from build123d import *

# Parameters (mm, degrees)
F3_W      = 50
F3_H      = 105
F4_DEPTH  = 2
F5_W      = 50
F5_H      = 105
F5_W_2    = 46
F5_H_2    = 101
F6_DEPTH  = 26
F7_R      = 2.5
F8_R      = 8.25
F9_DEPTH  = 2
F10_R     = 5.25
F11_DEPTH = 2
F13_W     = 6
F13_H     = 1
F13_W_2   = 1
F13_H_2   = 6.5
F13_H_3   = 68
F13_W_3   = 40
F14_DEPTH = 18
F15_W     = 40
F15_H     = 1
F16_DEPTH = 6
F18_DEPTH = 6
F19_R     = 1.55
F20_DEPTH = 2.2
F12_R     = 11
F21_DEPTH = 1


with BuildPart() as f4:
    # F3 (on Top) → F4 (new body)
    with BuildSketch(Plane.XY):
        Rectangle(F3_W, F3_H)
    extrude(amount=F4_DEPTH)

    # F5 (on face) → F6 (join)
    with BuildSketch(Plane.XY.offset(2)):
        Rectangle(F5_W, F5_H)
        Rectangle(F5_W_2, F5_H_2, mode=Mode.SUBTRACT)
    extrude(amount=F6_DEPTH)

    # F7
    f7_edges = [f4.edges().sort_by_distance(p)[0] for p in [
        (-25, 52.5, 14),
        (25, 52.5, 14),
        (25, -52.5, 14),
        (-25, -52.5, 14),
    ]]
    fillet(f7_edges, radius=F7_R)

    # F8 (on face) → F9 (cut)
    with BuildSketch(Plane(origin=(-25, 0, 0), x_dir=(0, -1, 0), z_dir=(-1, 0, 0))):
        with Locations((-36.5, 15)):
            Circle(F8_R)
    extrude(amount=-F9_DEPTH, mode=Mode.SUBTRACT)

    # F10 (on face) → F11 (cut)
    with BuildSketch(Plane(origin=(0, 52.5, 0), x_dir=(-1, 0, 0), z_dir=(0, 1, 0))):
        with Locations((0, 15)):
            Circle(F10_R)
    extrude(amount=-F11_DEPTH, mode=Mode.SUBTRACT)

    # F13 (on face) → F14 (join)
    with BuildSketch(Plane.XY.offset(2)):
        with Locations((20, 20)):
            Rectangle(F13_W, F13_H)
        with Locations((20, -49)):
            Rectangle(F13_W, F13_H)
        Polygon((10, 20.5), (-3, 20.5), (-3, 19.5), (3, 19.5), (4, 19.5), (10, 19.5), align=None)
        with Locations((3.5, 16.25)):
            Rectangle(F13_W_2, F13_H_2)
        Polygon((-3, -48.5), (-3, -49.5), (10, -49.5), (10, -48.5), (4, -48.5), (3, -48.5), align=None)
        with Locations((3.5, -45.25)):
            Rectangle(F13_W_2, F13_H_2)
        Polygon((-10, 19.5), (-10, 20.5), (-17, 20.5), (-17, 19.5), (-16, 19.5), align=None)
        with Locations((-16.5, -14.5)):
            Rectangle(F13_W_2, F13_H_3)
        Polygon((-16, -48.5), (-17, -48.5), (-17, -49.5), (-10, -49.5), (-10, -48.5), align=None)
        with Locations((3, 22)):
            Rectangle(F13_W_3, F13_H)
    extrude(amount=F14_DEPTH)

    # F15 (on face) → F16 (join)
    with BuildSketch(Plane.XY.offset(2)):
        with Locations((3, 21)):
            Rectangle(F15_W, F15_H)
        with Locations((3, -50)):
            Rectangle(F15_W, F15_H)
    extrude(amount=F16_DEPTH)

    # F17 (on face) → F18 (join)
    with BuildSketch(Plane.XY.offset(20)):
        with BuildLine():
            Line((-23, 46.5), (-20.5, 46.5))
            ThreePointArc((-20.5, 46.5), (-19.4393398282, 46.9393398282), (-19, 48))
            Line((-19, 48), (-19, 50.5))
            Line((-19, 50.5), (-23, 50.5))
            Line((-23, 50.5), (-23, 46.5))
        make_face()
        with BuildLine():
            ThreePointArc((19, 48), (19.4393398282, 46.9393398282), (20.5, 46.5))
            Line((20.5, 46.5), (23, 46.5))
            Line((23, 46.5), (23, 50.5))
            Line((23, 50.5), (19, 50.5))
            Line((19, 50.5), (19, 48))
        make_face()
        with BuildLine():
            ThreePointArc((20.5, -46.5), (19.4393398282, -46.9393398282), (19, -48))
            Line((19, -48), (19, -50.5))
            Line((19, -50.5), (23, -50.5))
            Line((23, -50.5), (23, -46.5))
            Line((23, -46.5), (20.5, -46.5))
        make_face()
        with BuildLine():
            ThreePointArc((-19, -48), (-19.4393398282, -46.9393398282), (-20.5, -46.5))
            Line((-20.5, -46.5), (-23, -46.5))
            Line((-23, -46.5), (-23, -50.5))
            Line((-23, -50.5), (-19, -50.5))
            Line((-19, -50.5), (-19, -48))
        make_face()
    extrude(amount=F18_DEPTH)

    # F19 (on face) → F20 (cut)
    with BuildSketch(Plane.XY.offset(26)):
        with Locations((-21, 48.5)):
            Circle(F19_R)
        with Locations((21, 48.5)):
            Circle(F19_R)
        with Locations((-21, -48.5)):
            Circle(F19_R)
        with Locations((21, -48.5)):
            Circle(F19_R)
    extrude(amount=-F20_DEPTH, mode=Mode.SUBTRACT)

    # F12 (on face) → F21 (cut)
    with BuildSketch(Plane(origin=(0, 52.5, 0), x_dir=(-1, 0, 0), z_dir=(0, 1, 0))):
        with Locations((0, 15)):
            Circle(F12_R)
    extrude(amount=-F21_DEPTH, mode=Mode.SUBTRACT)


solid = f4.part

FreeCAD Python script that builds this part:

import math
import FreeCAD as App
import Part
import Sketcher
from FreeCAD import Vector
Q = App.Units.Quantity


def edges_at(feature, points):
    """Names of the edges that pass closest to the given points."""
    edges = feature.Shape.Edges
    near = lambda p: min(range(len(edges)), key=lambda i: edges[i].distToShape(Part.Vertex(*p))[0])
    return sorted({f"Edge{near(p) + 1}" for p in points})

doc = App.newDocument("Part")
params = doc.addObject("Spreadsheet::Sheet", "Params")
for row, (alias, value) in enumerate([
    ("sketch1_width", "50 mm"),
    ("sketch1_height", "105 mm"),
    ("pad1_length", "2 mm"),
    ("sketch2_width", "50 mm"),
    ("sketch2_width2", "46 mm"),
    ("sketch2_height", "105 mm"),
    ("sketch2_height2", "101 mm"),
    ("pad2_length", "26 mm"),
    ("fillet_radius", "2.5 mm"),
    ("sketch3_diameter", "16.5 mm"),
    ("pocket1_length", "2 mm"),
    ("sketch4_diameter", "10.5 mm"),
    ("pocket2_length", "2 mm"),
    ("sketch5_width", "6 mm"),
    ("sketch5_width2", "13 mm"),
    ("sketch5_width3", "7 mm"),
    ("sketch5_width4", "40 mm"),
    ("sketch5_height", "70 mm"),
    ("pad3_length", "18 mm"),
    ("sketch6_width", "40 mm"),
    ("sketch6_height", "1 mm"),
    ("pad4_length", "6 mm"),
    ("sketch7_radius", "1.5 mm"),
    ("sketch7_width", "4 mm"),
    ("pad5_length", "6 mm"),
    ("sketch8_diameter", "3.1 mm"),
    ("pocket3_length", "2.2 mm"),
    ("sketch9_diameter", "22 mm"),
    ("pocket4_length", "1 mm"),
], start=1):
    params.set(f"A{row}", alias)
    params.set(f"B{row}", "=" + value)
    params.setAlias(f"B{row}", alias)

body = doc.addObject("PartDesign::Body", "Body")

sketch1 = doc.addObject("Sketcher::SketchObject", "Sketch")
body.addObject(sketch1)
sketch1.AttachmentSupport = (doc.XY_Plane, [""])
sketch1.MapMode = "FlatFace"
sketch1.addGeometry(Part.LineSegment(Vector(-25, 52, 0), Vector(-25, -52, 0)), False)
sketch1.addGeometry(Part.LineSegment(Vector(-25, -52, 0), Vector(25, -52, 0)), False)
sketch1.addGeometry(Part.LineSegment(Vector(25, -52, 0), Vector(25, 52, 0)), False)
sketch1.addGeometry(Part.LineSegment(Vector(25, 52, 0), Vector(-25, 52, 0)), False)
sketch1.addConstraint(Sketcher.Constraint("Coincident", 0, 2, 1, 1))
sketch1.addConstraint(Sketcher.Constraint("Coincident", 1, 2, 2, 1))
sketch1.addConstraint(Sketcher.Constraint("Coincident", 2, 2, 3, 1))
sketch1.addConstraint(Sketcher.Constraint("Coincident", 3, 2, 0, 1))
sketch1.addConstraint(Sketcher.Constraint("Vertical", 0))
sketch1.addConstraint(Sketcher.Constraint("Horizontal", 1))
sketch1.addConstraint(Sketcher.Constraint("Vertical", 2))
sketch1.addConstraint(Sketcher.Constraint("Horizontal", 3))
sketch1.addConstraint(Sketcher.Constraint("Symmetric", 0, 2, 2, 2, -1, 1))
sketch1.addConstraint(Sketcher.Constraint("DistanceX", 1, 1, 1, 2, Q("50 mm")))
sketch1.addConstraint(Sketcher.Constraint("DistanceY", 0, 2, 0, 1, Q("105 mm")))
sketch1.setExpression("Constraints[9]", "Params.sketch1_width")
sketch1.setExpression("Constraints[10]", "Params.sketch1_height")
pad1 = doc.addObject("PartDesign::Pad", "Pad")
body.addObject(pad1)
pad1.Profile = sketch1
pad1.setExpression("Length", "Params.pad1_length")

sketch2 = doc.addObject("Sketcher::SketchObject", "Sketch001")
body.addObject(sketch2)
sketch2.AttachmentSupport = (doc.XY_Plane, [""])
sketch2.MapMode = "FlatFace"
sketch2.AttachmentOffset = App.Placement(Vector(0, 0, 2), App.Rotation())
sketch2.addGeometry(Part.LineSegment(Vector(-25, 52, 0), Vector(-25, -52, 0)), False)
sketch2.addGeometry(Part.LineSegment(Vector(-25, -52, 0), Vector(25, -52, 0)), False)
sketch2.addGeometry(Part.LineSegment(Vector(25, -52, 0), Vector(25, 52, 0)), False)
sketch2.addGeometry(Part.LineSegment(Vector(25, 52, 0), Vector(-25, 52, 0)), False)
sketch2.addGeometry(Part.LineSegment(Vector(23, -50, 0), Vector(-23, -50, 0)), False)
sketch2.addGeometry(Part.LineSegment(Vector(-23, -50, 0), Vector(-23, 50, 0)), False)
sketch2.addGeometry(Part.LineSegment(Vector(-23, 50, 0), Vector(23, 50, 0)), False)
sketch2.addGeometry(Part.LineSegment(Vector(23, 50, 0), Vector(23, -50, 0)), False)
sketch2.addConstraint(Sketcher.Constraint("Coincident", 0, 2, 1, 1))
sketch2.addConstraint(Sketcher.Constraint("Coincident", 1, 2, 2, 1))
sketch2.addConstraint(Sketcher.Constraint("Coincident", 2, 2, 3, 1))
sketch2.addConstraint(Sketcher.Constraint("Coincident", 3, 2, 0, 1))
sketch2.addConstraint(Sketcher.Constraint("Coincident", 4, 2, 5, 1))
sketch2.addConstraint(Sketcher.Constraint("Coincident", 5, 2, 6, 1))
sketch2.addConstraint(Sketcher.Constraint("Coincident", 6, 2, 7, 1))
sketch2.addConstraint(Sketcher.Constraint("Coincident", 7, 2, 4, 1))
sketch2.addConstraint(Sketcher.Constraint("Vertical", 0))
sketch2.addConstraint(Sketcher.Constraint("Horizontal", 1))
sketch2.addConstraint(Sketcher.Constraint("Vertical", 2))
sketch2.addConstraint(Sketcher.Constraint("Horizontal", 3))
sketch2.addConstraint(Sketcher.Constraint("Horizontal", 4))
sketch2.addConstraint(Sketcher.Constraint("Vertical", 5))
sketch2.addConstraint(Sketcher.Constraint("Horizontal", 6))
sketch2.addConstraint(Sketcher.Constraint("Vertical", 7))
sketch2.addConstraint(Sketcher.Constraint("Symmetric", 0, 2, 2, 2, -1, 1))
sketch2.addConstraint(Sketcher.Constraint("Symmetric", 4, 2, 6, 2, -1, 1))
sketch2.addConstraint(Sketcher.Constraint("DistanceX", 1, 1, 1, 2, Q("50 mm")))
sketch2.addConstraint(Sketcher.Constraint("DistanceX", 4, 2, 4, 1, Q("46 mm")))
sketch2.addConstraint(Sketcher.Constraint("DistanceY", 0, 2, 0, 1, Q("105 mm")))
sketch2.addConstraint(Sketcher.Constraint("DistanceY", 5, 1, 5, 2, Q("101 mm")))
sketch2.setExpression("Constraints[18]", "Params.sketch2_width")
sketch2.setExpression("Constraints[19]", "Params.sketch2_width2")
sketch2.setExpression("Constraints[20]", "Params.sketch2_height")
sketch2.setExpression("Constraints[21]", "Params.sketch2_height2")
pad2 = doc.addObject("PartDesign::Pad", "Pad001")
body.addObject(pad2)
pad2.Profile = sketch2
pad2.setExpression("Length", "Params.pad2_length")
doc.recompute()

fillet = doc.addObject("PartDesign::Fillet", "Fillet")
body.addObject(fillet)
fillet.Base = (pad2, edges_at(pad2, [
    (-25, 52.5, 14),
    (25, 52.5, 14),
    (25, -52.5, 14),
    (-25, -52.5, 14),
]))
fillet.setExpression("Radius", "Params.fillet_radius")

sketch3 = doc.addObject("Sketcher::SketchObject", "Sketch002")
body.addObject(sketch3)
sketch3.AttachmentSupport = (doc.YZ_Plane, [""])
sketch3.MapMode = "FlatFace"
sketch3.AttachmentOffset = App.Placement(Vector(0, 0, -25), App.Rotation())
sketch3.addGeometry(Part.Circle(Vector(36, 15, 0), Vector(0, 0, 1), 8), False)
sketch3.addConstraint(Sketcher.Constraint("Diameter", 0, Q("16.5 mm")))
sketch3.addConstraint(Sketcher.Constraint("DistanceY", -1, 1, 0, 3, Q("15 mm")))
sketch3.addConstraint(Sketcher.Constraint("DistanceX", -1, 1, 0, 3, Q("36.5 mm")))
sketch3.setExpression("Constraints[0]", "Params.sketch3_diameter")
pocket1 = doc.addObject("PartDesign::Pocket", "Pocket")
body.addObject(pocket1)
pocket1.Profile = sketch3
pocket1.setExpression("Length", "Params.pocket1_length")
pocket1.Reversed = True

sketch4 = doc.addObject("Sketcher::SketchObject", "Sketch003")
body.addObject(sketch4)
sketch4.AttachmentSupport = (doc.XZ_Plane, [""])
sketch4.MapMode = "FlatFace"
sketch4.AttachmentOffset = App.Placement(Vector(0, 0, -52.5), App.Rotation())
sketch4.addGeometry(Part.Circle(Vector(0, 15, 0), Vector(0, 0, 1), 5), False)
sketch4.addConstraint(Sketcher.Constraint("PointOnObject", 0, 3, -2))
sketch4.addConstraint(Sketcher.Constraint("Diameter", 0, Q("10.5 mm")))
sketch4.addConstraint(Sketcher.Constraint("DistanceY", -1, 1, 0, 3, Q("15 mm")))
sketch4.setExpression("Constraints[1]", "Params.sketch4_diameter")
pocket2 = doc.addObject("PartDesign::Pocket", "Pocket001")
body.addObject(pocket2)
pocket2.Profile = sketch4
pocket2.setExpression("Length", "Params.pocket2_length")
pocket2.Reversed = True

sketch5 = doc.addObject("Sketcher::SketchObject", "Sketch004")
body.addObject(sketch5)
sketch5.AttachmentSupport = (doc.XY_Plane, [""])
sketch5.MapMode = "FlatFace"
sketch5.AttachmentOffset = App.Placement(Vector(0, 0, 2), App.Rotation())
sketch5.addGeometry(Part.LineSegment(Vector(17, 20.5, 0), Vector(17, 19.5, 0)), False)
sketch5.addGeometry(Part.LineSegment(Vector(17, 19.5, 0), Vector(23, 19.5, 0)), False)
sketch5.addGeometry(Part.LineSegment(Vector(23, 19.5, 0), Vector(23, 20.5, 0)), False)
sketch5.addGeometry(Part.LineSegment(Vector(23, 20.5, 0), Vector(17, 20.5, 0)), False)
sketch5.addGeometry(Part.LineSegment(Vector(17, -48.5, 0), Vector(17, -49.5, 0)), False)
sketch5.addGeometry(Part.LineSegment(Vector(17, -49.5, 0), Vector(23, -49.5, 0)), False)
sketch5.addGeometry(Part.LineSegment(Vector(23, -49.5, 0), Vector(23, -48.5, 0)), False)
sketch5.addGeometry(Part.LineSegment(Vector(23, -48.5, 0), Vector(17, -48.5, 0)), False)
sketch5.addGeometry(Part.LineSegment(Vector(10, 20.5, 0), Vector(-3, 20.5, 0)), False)
sketch5.addGeometry(Part.LineSegment(Vector(-3, 20.5, 0), Vector(-3, 19.5, 0)), False)
sketch5.addGeometry(Part.LineSegment(Vector(-3, 19.5, 0), Vector(3, 19.5, 0)), False)
sketch5.addGeometry(Part.LineSegment(Vector(3, 19.5, 0), Vector(3, 13, 0)), False)
sketch5.addGeometry(Part.LineSegment(Vector(3, 13, 0), Vector(4, 13, 0)), False)
sketch5.addGeometry(Part.LineSegment(Vector(4, 13, 0), Vector(4, 19.5, 0)), False)
sketch5.addGeometry(Part.LineSegment(Vector(4, 19.5, 0), Vector(10, 19.5, 0)), False)
sketch5.addGeometry(Part.LineSegment(Vector(10, 19.5, 0), Vector(10, 20.5, 0)), False)
sketch5.addGeometry(Part.LineSegment(Vector(-3, -48.5, 0), Vector(-3, -49.5, 0)), False)
sketch5.addGeometry(Part.LineSegment(Vector(-3, -49.5, 0), Vector(10, -49.5, 0)), False)
sketch5.addGeometry(Part.LineSegment(Vector(10, -49.5, 0), Vector(10, -48.5, 0)), False)
sketch5.addGeometry(Part.LineSegment(Vector(10, -48.5, 0), Vector(4, -48.5, 0)), False)
sketch5.addGeometry(Part.LineSegment(Vector(4, -48.5, 0), Vector(4, -42, 0)), False)
sketch5.addGeometry(Part.LineSegment(Vector(4, -42, 0), Vector(3, -42, 0)), False)
sketch5.addGeometry(Part.LineSegment(Vector(3, -42, 0), Vector(3, -48.5, 0)), False)
sketch5.addGeometry(Part.LineSegment(Vector(3, -48.5, 0), Vector(-3, -48.5, 0)), False)
sketch5.addGeometry(Part.LineSegment(Vector(-10, 19.5, 0), Vector(-10, 20.5, 0)), False)
sketch5.addGeometry(Part.LineSegment(Vector(-10, 20.5, 0), Vector(-17, 20.5, 0)), False)
sketch5.addGeometry(Part.LineSegment(Vector(-17, 20.5, 0), Vector(-17, -49.5, 0)), False)
sketch5.addGeometry(Part.LineSegment(Vector(-17, -49.5, 0), Vector(-10, -49.5, 0)), False)
sketch5.addGeometry(Part.LineSegment(Vector(-10, -49.5, 0), Vector(-10, -48.5, 0)), False)
sketch5.addGeometry(Part.LineSegment(Vector(-10, -48.5, 0), Vector(-16, -48.5, 0)), False)
sketch5.addGeometry(Part.LineSegment(Vector(-16, -48.5, 0), Vector(-16, 19.5, 0)), False)
sketch5.addGeometry(Part.LineSegment(Vector(-16, 19.5, 0), Vector(-10, 19.5, 0)), False)
sketch5.addGeometry(Part.LineSegment(Vector(-17, 22.5, 0), Vector(-17, 21.5, 0)), False)
sketch5.addGeometry(Part.LineSegment(Vector(-17, 21.5, 0), Vector(23, 21.5, 0)), False)
sketch5.addGeometry(Part.LineSegment(Vector(23, 21.5, 0), Vector(23, 22.5, 0)), False)
sketch5.addGeometry(Part.LineSegment(Vector(23, 22.5, 0), Vector(-17, 22.5, 0)), False)
sketch5.addConstraint(Sketcher.Constraint("Coincident", 0, 2, 1, 1))
sketch5.addConstraint(Sketcher.Constraint("Coincident", 1, 2, 2, 1))
sketch5.addConstraint(Sketcher.Constraint("Coincident", 2, 2, 3, 1))
sketch5.addConstraint(Sketcher.Constraint("Coincident", 3, 2, 0, 1))
sketch5.addConstraint(Sketcher.Constraint("Coincident", 4, 2, 5, 1))
sketch5.addConstraint(Sketcher.Constraint("Coincident", 5, 2, 6, 1))
sketch5.addConstraint(Sketcher.Constraint("Coincident", 6, 2, 7, 1))
sketch5.addConstraint(Sketcher.Constraint("Coincident", 7, 2, 4, 1))
sketch5.addConstraint(Sketcher.Constraint("Coincident", 8, 2, 9, 1))
sketch5.addConstraint(Sketcher.Constraint("Coincident", 9, 2, 10, 1))
sketch5.addConstraint(Sketcher.Constraint("Coincident", 10, 2, 11, 1))
sketch5.addConstraint(Sketcher.Constraint("Coincident", 11, 2, 12, 1))
sketch5.addConstraint(Sketcher.Constraint("Coincident", 12, 2, 13, 1))
sketch5.addConstraint(Sketcher.Constraint("Coincident", 13, 2, 14, 1))
sketch5.addConstraint(Sketcher.Constraint("Coincident", 14, 2, 15, 1))
sketch5.addConstraint(Sketcher.Constraint("Coincident", 15, 2, 8, 1))
sketch5.addConstraint(Sketcher.Constraint("Coincident", 16, 2, 17, 1))
sketch5.addConstraint(Sketcher.Constraint("Coincident", 17, 2, 18, 1))
sketch5.addConstraint(Sketcher.Constraint("Coincident", 18, 2, 19, 1))
sketch5.addConstraint(Sketcher.Constraint("Coincident", 19, 2, 20, 1))
sketch5.addConstraint(Sketcher.Constraint("Coincident", 20, 2, 21, 1))
sketch5.addConstraint(Sketcher.Constraint("Coincident", 21, 2, 22, 1))
sketch5.addConstraint(Sketcher.Constraint("Coincident", 22, 2, 23, 1))
sketch5.addConstraint(Sketcher.Constraint("Coincident", 23, 2, 16, 1))
sketch5.addConstraint(Sketcher.Constraint("Coincident", 24, 2, 25, 1))
sketch5.addConstraint(Sketcher.Constraint("Coincident", 25, 2, 26, 1))
sketch5.addConstraint(Sketcher.Constraint("Coincident", 26, 2, 27, 1))
sketch5.addConstraint(Sketcher.Constraint("Coincident", 27, 2, 28, 1))
sketch5.addConstraint(Sketcher.Constraint("Coincident", 28, 2, 29, 1))
sketch5.addConstraint(Sketcher.Constraint("Coincident", 29, 2, 30, 1))
sketch5.addConstraint(Sketcher.Constraint("Coincident", 30, 2, 31, 1))
sketch5.addConstraint(Sketcher.Constraint("Coincident", 31, 2, 24, 1))
sketch5.addConstraint(Sketcher.Constraint("Coincident", 32, 2, 33, 1))
sketch5.addConstraint(Sketcher.Constraint("Coincident", 33, 2, 34, 1))
sketch5.addConstraint(Sketcher.Constraint("Coincident", 34, 2, 35, 1))
sketch5.addConstraint(Sketcher.Constraint("Coincident", 35, 2, 32, 1))
sketch5.addConstraint(Sketcher.Constraint("Vertical", 0))
sketch5.addConstraint(Sketcher.Constraint("Horizontal", 1))
sketch5.addConstraint(Sketcher.Constraint("Vertical", 2))
sketch5.addConstraint(Sketcher.Constraint("Horizontal", 3))
sketch5.addConstraint(Sketcher.Constraint("Vertical", 4))
sketch5.addConstraint(Sketcher.Constraint("Horizontal", 5))
sketch5.addConstraint(Sketcher.Constraint("Vertical", 6))
sketch5.addConstraint(Sketcher.Constraint("Horizontal", 7))
sketch5.addConstraint(Sketcher.Constraint("Horizontal", 8))
sketch5.addConstraint(Sketcher.Constraint("Vertical", 9))
sketch5.addConstraint(Sketcher.Constraint("Horizontal", 10))
sketch5.addConstraint(Sketcher.Constraint("Vertical", 11))
sketch5.addConstraint(Sketcher.Constraint("Horizontal", 12))
sketch5.addConstraint(Sketcher.Constraint("Vertical", 13))
sketch5.addConstraint(Sketcher.Constraint("Horizontal", 14))
sketch5.addConstraint(Sketcher.Constraint("Vertical", 15))
sketch5.addConstraint(Sketcher.Constraint("Vertical", 16))
sketch5.addConstraint(Sketcher.Constraint("Horizontal", 17))
sketch5.addConstraint(Sketcher.Constraint("Vertical", 18))
sketch5.addConstraint(Sketcher.Constraint("Horizontal", 19))
sketch5.addConstraint(Sketcher.Constraint("Vertical", 20))
sketch5.addConstraint(Sketcher.Constraint("Horizontal", 21))
sketch5.addConstraint(Sketcher.Constraint("Vertical", 22))
sketch5.addConstraint(Sketcher.Constraint("Horizontal", 23))
sketch5.addConstraint(Sketcher.Constraint("Vertical", 24))
sketch5.addConstraint(Sketcher.Constraint("Horizontal", 25))
sketch5.addConstraint(Sketcher.Constraint("Vertical", 26))
sketch5.addConstraint(Sketcher.Constraint("Horizontal", 27))
sketch5.addConstraint(Sketcher.Constraint("Vertical", 28))
sketch5.addConstraint(Sketcher.Constraint("Horizontal", 29))
sketch5.addConstraint(Sketcher.Constraint("Vertical", 30))
sketch5.addConstraint(Sketcher.Constraint("Horizontal", 31))
sketch5.addConstraint(Sketcher.Constraint("Vertical", 32))
sketch5.addConstraint(Sketcher.Constraint("Horizontal", 33))
sketch5.addConstraint(Sketcher.Constraint("Vertical", 34))
sketch5.addConstraint(Sketcher.Constraint("Horizontal", 35))
sketch5.addConstraint(Sketcher.Constraint("Symmetric", 15, 2, 24, 2, -2))
sketch5.addConstraint(Sketcher.Constraint("Symmetric", 3, 2, 25, 2, -2))
sketch5.addConstraint(Sketcher.Constraint("Symmetric", 4, 2, 26, 2, -2))
sketch5.addConstraint(Sketcher.Constraint("Symmetric", 17, 2, 27, 2, -2))
sketch5.addConstraint(Sketcher.Constraint("Horizontal", 1, 2, 9, 2))
sketch5.addConstraint(Sketcher.Constraint("Horizontal", 10, 2, 13, 2))
sketch5.addConstraint(Sketcher.Constraint("Horizontal", 7, 2, 18, 2))
sketch5.addConstraint(Sketcher.Constraint("Horizontal", 19, 2, 22, 2))
sketch5.addConstraint(Sketcher.Constraint("Horizontal", 23, 2, 28, 2))
sketch5.addConstraint(Sketcher.Constraint("Horizontal", 14, 2, 30, 2))
sketch5.addConstraint(Sketcher.Constraint("Vertical", 2, 2, 5, 2))
sketch5.addConstraint(Sketcher.Constraint("Vertical", 9, 2, 16, 2))
sketch5.addConstraint(Sketcher.Constraint("Vertical", 15, 2, 17, 2))
sketch5.addConstraint(Sketcher.Constraint("Vertical", 13, 2, 19, 2))
sketch5.addConstraint(Sketcher.Constraint("Vertical", 11, 2, 21, 2))
sketch5.addConstraint(Sketcher.Constraint("Vertical", 26, 2, 32, 2))
sketch5.addConstraint(Sketcher.Constraint("Vertical", 6, 2, 33, 2))
sketch5.addConstraint(Sketcher.Constraint("Equal", 7, 10))
sketch5.addConstraint(Sketcher.Constraint("Equal", 10, 14))
sketch5.addConstraint(Sketcher.Constraint("Equal", 23, 29))
sketch5.addConstraint(Sketcher.Constraint("Equal", 21, 0))
sketch5.addConstraint(Sketcher.Constraint("Equal", 2, 4))
sketch5.addConstraint(Sketcher.Constraint("Equal", 13, 20))
sketch5.addConstraint(Sketcher.Constraint("Equal", 28, 32))
sketch5.addConstraint(Sketcher.Constraint("DistanceX", 1, 1, 1, 2, Q("6 mm")))
sketch5.addConstraint(Sketcher.Constraint("DistanceX", 8, 2, 8, 1, Q("13 mm")))
sketch5.addConstraint(Sketcher.Constraint("DistanceX", 25, 2, 25, 1, Q("7 mm")))
sketch5.addConstraint(Sketcher.Constraint("DistanceX", 33, 1, 33, 2, Q("40 mm")))
sketch5.addConstraint(Sketcher.Constraint("DistanceY", 26, 2, 26, 1, Q("70 mm")))
sketch5.addConstraint(Sketcher.Constraint("DistanceY", 11, 2, 11, 1, Q("6.5 mm")))
sketch5.addConstraint(Sketcher.Constraint("DistanceY", -1, 1, 11, 2, Q("13 mm")))
sketch5.addConstraint(Sketcher.Constraint("DistanceY", 25, 2, 32, 2, Q("1 mm")))
sketch5.setExpression("Constraints[96]", "Params.sketch5_width")
sketch5.setExpression("Constraints[97]", "Params.sketch5_width2")
sketch5.setExpression("Constraints[98]", "Params.sketch5_width3")
sketch5.setExpression("Constraints[99]", "Params.sketch5_width4")
sketch5.setExpression("Constraints[100]", "Params.sketch5_height")
pad3 = doc.addObject("PartDesign::Pad", "Pad002")
body.addObject(pad3)
pad3.Profile = sketch5
pad3.setExpression("Length", "Params.pad3_length")

sketch6 = doc.addObject("Sketcher::SketchObject", "Sketch005")
body.addObject(sketch6)
sketch6.AttachmentSupport = (doc.XY_Plane, [""])
sketch6.MapMode = "FlatFace"
sketch6.AttachmentOffset = App.Placement(Vector(0, 0, 2), App.Rotation())
sketch6.addGeometry(Part.LineSegment(Vector(-17, 21.5, 0), Vector(-17, 20.5, 0)), False)
sketch6.addGeometry(Part.LineSegment(Vector(-17, 20.5, 0), Vector(23, 20.5, 0)), False)
sketch6.addGeometry(Part.LineSegment(Vector(23, 20.5, 0), Vector(23, 21.5, 0)), False)
sketch6.addGeometry(Part.LineSegment(Vector(23, 21.5, 0), Vector(-17, 21.5, 0)), False)
sketch6.addGeometry(Part.LineSegment(Vector(-17, -49.5, 0), Vector(-17, -50.5, 0)), False)
sketch6.addGeometry(Part.LineSegment(Vector(-17, -50.5, 0), Vector(23, -50.5, 0)), False)
sketch6.addGeometry(Part.LineSegment(Vector(23, -50.5, 0), Vector(23, -49.5, 0)), False)
sketch6.addGeometry(Part.LineSegment(Vector(23, -49.5, 0), Vector(-17, -49.5, 0)), False)
sketch6.addConstraint(Sketcher.Constraint("Coincident", 0, 2, 1, 1))
sketch6.addConstraint(Sketcher.Constraint("Coincident", 1, 2, 2, 1))
sketch6.addConstraint(Sketcher.Constraint("Coincident", 2, 2, 3, 1))
sketch6.addConstraint(Sketcher.Constraint("Coincident", 3, 2, 0, 1))
sketch6.addConstraint(Sketcher.Constraint("Coincident", 4, 2, 5, 1))
sketch6.addConstraint(Sketcher.Constraint("Coincident", 5, 2, 6, 1))
sketch6.addConstraint(Sketcher.Constraint("Coincident", 6, 2, 7, 1))
sketch6.addConstraint(Sketcher.Constraint("Coincident", 7, 2, 4, 1))
sketch6.addConstraint(Sketcher.Constraint("Vertical", 0))
sketch6.addConstraint(Sketcher.Constraint("Horizontal", 1))
sketch6.addConstraint(Sketcher.Constraint("Vertical", 2))
sketch6.addConstraint(Sketcher.Constraint("Horizontal", 3))
sketch6.addConstraint(Sketcher.Constraint("Vertical", 4))
sketch6.addConstraint(Sketcher.Constraint("Horizontal", 5))
sketch6.addConstraint(Sketcher.Constraint("Vertical", 6))
sketch6.addConstraint(Sketcher.Constraint("Horizontal", 7))
sketch6.addConstraint(Sketcher.Constraint("Vertical", 3, 2, 4, 2))
sketch6.addConstraint(Sketcher.Constraint("Vertical", 2, 2, 5, 2))
sketch6.addConstraint(Sketcher.Constraint("Equal", 2, 4))
sketch6.addConstraint(Sketcher.Constraint("DistanceX", 1, 1, 1, 2, Q("40 mm")))
sketch6.addConstraint(Sketcher.Constraint("DistanceY", 0, 2, 0, 1, Q("1 mm")))
sketch6.addConstraint(Sketcher.Constraint("DistanceX", 0, 2, -1, 1, Q("17 mm")))
sketch6.addConstraint(Sketcher.Constraint("DistanceY", 4, 2, 0, 2, Q("71 mm")))
sketch6.addConstraint(Sketcher.Constraint("DistanceY", -1, 1, 0, 2, Q("20.5 mm")))
sketch6.setExpression("Constraints[19]", "Params.sketch6_width")
sketch6.setExpression("Constraints[20]", "Params.sketch6_height")
pad4 = doc.addObject("PartDesign::Pad", "Pad003")
body.addObject(pad4)
pad4.Profile = sketch6
pad4.setExpression("Length", "Params.pad4_length")

sketch7 = doc.addObject("Sketcher::SketchObject", "Sketch006")
body.addObject(sketch7)
sketch7.AttachmentSupport = (doc.XY_Plane, [""])
sketch7.MapMode = "FlatFace"
sketch7.AttachmentOffset = App.Placement(Vector(0, 0, 20), App.Rotation())
sketch7.addGeometry(Part.LineSegment(Vector(-23, 46.5, 0), Vector(-20.5, 46.5, 0)), False)
sketch7.addGeometry(Part.ArcOfCircle(Part.Circle(Vector(-20.5, 48, 0), Vector(0, 0, 1), 1.5), math.radians(-90), math.radians(0)), False)
sketch7.addGeometry(Part.LineSegment(Vector(-19, 48, 0), Vector(-19, 50.5, 0)), False)
sketch7.addGeometry(Part.LineSegment(Vector(-19, 50.5, 0), Vector(-23, 50.5, 0)), False)
sketch7.addGeometry(Part.LineSegment(Vector(-23, 50.5, 0), Vector(-23, 46.5, 0)), False)
sketch7.addGeometry(Part.ArcOfCircle(Part.Circle(Vector(20.5, 48, 0), Vector(0, 0, 1), 1.5), math.radians(180), math.radians(270)), False)
sketch7.addGeometry(Part.LineSegment(Vector(20.5, 46.5, 0), Vector(23, 46.5, 0)), False)
sketch7.addGeometry(Part.LineSegment(Vector(23, 46.5, 0), Vector(23, 50.5, 0)), False)
sketch7.addGeometry(Part.LineSegment(Vector(23, 50.5, 0), Vector(19, 50.5, 0)), False)
sketch7.addGeometry(Part.LineSegment(Vector(19, 50.5, 0), Vector(19, 48, 0)), False)
sketch7.addGeometry(Part.ArcOfCircle(Part.Circle(Vector(20.5, -48, 0), Vector(0, 0, 1), 1.5), math.radians(90), math.radians(180)), False)
sketch7.addGeometry(Part.LineSegment(Vector(19, -48, 0), Vector(19, -50.5, 0)), False)
sketch7.addGeometry(Part.LineSegment(Vector(19, -50.5, 0), Vector(23, -50.5, 0)), False)
sketch7.addGeometry(Part.LineSegment(Vector(23, -50.5, 0), Vector(23, -46.5, 0)), False)
sketch7.addGeometry(Part.LineSegment(Vector(23, -46.5, 0), Vector(20.5, -46.5, 0)), False)
sketch7.addGeometry(Part.ArcOfCircle(Part.Circle(Vector(-20.5, -48, 0), Vector(0, 0, 1), 1.5), math.radians(0), math.radians(90)), False)
sketch7.addGeometry(Part.LineSegment(Vector(-20.5, -46.5, 0), Vector(-23, -46.5, 0)), False)
sketch7.addGeometry(Part.LineSegment(Vector(-23, -46.5, 0), Vector(-23, -50.5, 0)), False)
sketch7.addGeometry(Part.LineSegment(Vector(-23, -50.5, 0), Vector(-19, -50.5, 0)), False)
sketch7.addGeometry(Part.LineSegment(Vector(-19, -50.5, 0), Vector(-19, -48, 0)), False)
sketch7.addConstraint(Sketcher.Constraint("Tangent", 0, 2, 1, 1))
sketch7.addConstraint(Sketcher.Constraint("Tangent", 1, 2, 2, 1))
sketch7.addConstraint(Sketcher.Constraint("Coincident", 2, 2, 3, 1))
sketch7.addConstraint(Sketcher.Constraint("Coincident", 3, 2, 4, 1))
sketch7.addConstraint(Sketcher.Constraint("Coincident", 4, 2, 0, 1))
sketch7.addConstraint(Sketcher.Constraint("Tangent", 5, 2, 6, 1))
sketch7.addConstraint(Sketcher.Constraint("Coincident", 6, 2, 7, 1))
sketch7.addConstraint(Sketcher.Constraint("Coincident", 7, 2, 8, 1))
sketch7.addConstraint(Sketcher.Constraint("Coincident", 8, 2, 9, 1))
sketch7.addConstraint(Sketcher.Constraint("Tangent", 9, 2, 5, 1))
sketch7.addConstraint(Sketcher.Constraint("Tangent", 10, 2, 11, 1))
sketch7.addConstraint(Sketcher.Constraint("Coincident", 11, 2, 12, 1))
sketch7.addConstraint(Sketcher.Constraint("Coincident", 12, 2, 13, 1))
sketch7.addConstraint(Sketcher.Constraint("Coincident", 13, 2, 14, 1))
sketch7.addConstraint(Sketcher.Constraint("Tangent", 14, 2, 10, 1))
sketch7.addConstraint(Sketcher.Constraint("Tangent", 15, 2, 16, 1))
sketch7.addConstraint(Sketcher.Constraint("Coincident", 16, 2, 17, 1))
sketch7.addConstraint(Sketcher.Constraint("Coincident", 17, 2, 18, 1))
sketch7.addConstraint(Sketcher.Constraint("Coincident", 18, 2, 19, 1))
sketch7.addConstraint(Sketcher.Constraint("Tangent", 19, 2, 15, 1))
sketch7.addConstraint(Sketcher.Constraint("Horizontal", 0))
sketch7.addConstraint(Sketcher.Constraint("Vertical", 2))
sketch7.addConstraint(Sketcher.Constraint("Horizontal", 3))
sketch7.addConstraint(Sketcher.Constraint("Vertical", 4))
sketch7.addConstraint(Sketcher.Constraint("Horizontal", 6))
sketch7.addConstraint(Sketcher.Constraint("Vertical", 7))
sketch7.addConstraint(Sketcher.Constraint("Horizontal", 8))
sketch7.addConstraint(Sketcher.Constraint("Vertical", 9))
sketch7.addConstraint(Sketcher.Constraint("Vertical", 11))
sketch7.addConstraint(Sketcher.Constraint("Horizontal", 12))
sketch7.addConstraint(Sketcher.Constraint("Vertical", 13))
sketch7.addConstraint(Sketcher.Constraint("Horizontal", 14))
sketch7.addConstraint(Sketcher.Constraint("Horizontal", 16))
sketch7.addConstraint(Sketcher.Constraint("Vertical", 17))
sketch7.addConstraint(Sketcher.Constraint("Horizontal", 18))
sketch7.addConstraint(Sketcher.Constraint("Vertical", 19))
sketch7.addConstraint(Sketcher.Constraint("Equal", 1, 5))
sketch7.addConstraint(Sketcher.Constraint("Equal", 5, 10))
sketch7.addConstraint(Sketcher.Constraint("Equal", 10, 15))
sketch7.addConstraint(Sketcher.Constraint("Symmetric", 1, 3, 10, 3, -1, 1))
sketch7.addConstraint(Sketcher.Constraint("Symmetric", 5, 3, 15, 3, -1, 1))
sketch7.addConstraint(Sketcher.Constraint("Symmetric", 3, 2, 12, 2, -1, 1))
sketch7.addConstraint(Sketcher.Constraint("Symmetric", 7, 2, 17, 2, -1, 1))
sketch7.addConstraint(Sketcher.Constraint("Symmetric", 1, 3, 5, 3, -2))
sketch7.addConstraint(Sketcher.Constraint("Symmetric", 3, 2, 7, 2, -2))
sketch7.addConstraint(Sketcher.Constraint("Equal", 16, 2))
sketch7.addConstraint(Sketcher.Constraint("Radius", 1, Q("1.5 mm")))
sketch7.addConstraint(Sketcher.Constraint("DistanceX", 3, 2, 3, 1, Q("4 mm")))
sketch7.addConstraint(Sketcher.Constraint("DistanceY", -1, 1, 1, 3, Q("48 mm")))
sketch7.addConstraint(Sketcher.Constraint("DistanceX", 1, 2, -1, 1, Q("19 mm")))
sketch7.setExpression("Constraints[46]", "Params.sketch7_radius")
sketch7.setExpression("Constraints[47]", "Params.sketch7_width")
pad5 = doc.addObject("PartDesign::Pad", "Pad004")
body.addObject(pad5)
pad5.Profile = sketch7
pad5.setExpression("Length", "Params.pad5_length")

sketch8 = doc.addObject("Sketcher::SketchObject", "Sketch007")
body.addObject(sketch8)
sketch8.AttachmentSupport = (doc.XY_Plane, [""])
sketch8.MapMode = "FlatFace"
sketch8.AttachmentOffset = App.Placement(Vector(0, 0, 26), App.Rotation())
sketch8.addGeometry(Part.Circle(Vector(-21, 48.5, 0), Vector(0, 0, 1), 1.6), False)
sketch8.addGeometry(Part.Circle(Vector(21, 48.5, 0), Vector(0, 0, 1), 1.6), False)
sketch8.addGeometry(Part.Circle(Vector(-21, -48.5, 0), Vector(0, 0, 1), 1.6), False)
sketch8.addGeometry(Part.Circle(Vector(21, -48.5, 0), Vector(0, 0, 1), 1.6), False)
sketch8.addConstraint(Sketcher.Constraint("Equal", 0, 1))
sketch8.addConstraint(Sketcher.Constraint("Equal", 1, 2))
sketch8.addConstraint(Sketcher.Constraint("Equal", 2, 3))
sketch8.addConstraint(Sketcher.Constraint("Symmetric", 1, 3, 2, 3, -1, 1))
sketch8.addConstraint(Sketcher.Constraint("Symmetric", 0, 3, 3, 3, -1, 1))
sketch8.addConstraint(Sketcher.Constraint("Symmetric", 0, 3, 1, 3, -2))
sketch8.addConstraint(Sketcher.Constraint("Diameter", 0, Q("3.1 mm")))
sketch8.addConstraint(Sketcher.Constraint("DistanceX", 0, 3, -1, 1, Q("21 mm")))
sketch8.addConstraint(Sketcher.Constraint("DistanceY", 2, 3, 0, 3, Q("97 mm")))
sketch8.setExpression("Constraints[6]", "Params.sketch8_diameter")
pocket3 = doc.addObject("PartDesign::Pocket", "Pocket002")
body.addObject(pocket3)
pocket3.Profile = sketch8
pocket3.setExpression("Length", "Params.pocket3_length")

sketch9 = doc.addObject("Sketcher::SketchObject", "Sketch008")
body.addObject(sketch9)
sketch9.AttachmentSupport = (doc.XZ_Plane, [""])
sketch9.MapMode = "FlatFace"
sketch9.AttachmentOffset = App.Placement(Vector(0, 0, -52.5), App.Rotation())
sketch9.addGeometry(Part.Circle(Vector(0, 15, 0), Vector(0, 0, 1), 11), False)
sketch9.addConstraint(Sketcher.Constraint("PointOnObject", 0, 3, -2))
sketch9.addConstraint(Sketcher.Constraint("Diameter", 0, Q("22 mm")))
sketch9.addConstraint(Sketcher.Constraint("DistanceY", -1, 1, 0, 3, Q("15 mm")))
sketch9.setExpression("Constraints[1]", "Params.sketch9_diameter")
pocket4 = doc.addObject("PartDesign::Pocket", "Pocket003")
body.addObject(pocket4)
pocket4.Profile = sketch9
pocket4.setExpression("Length", "Params.pocket4_length")
pocket4.Reversed = True

doc.recompute()
